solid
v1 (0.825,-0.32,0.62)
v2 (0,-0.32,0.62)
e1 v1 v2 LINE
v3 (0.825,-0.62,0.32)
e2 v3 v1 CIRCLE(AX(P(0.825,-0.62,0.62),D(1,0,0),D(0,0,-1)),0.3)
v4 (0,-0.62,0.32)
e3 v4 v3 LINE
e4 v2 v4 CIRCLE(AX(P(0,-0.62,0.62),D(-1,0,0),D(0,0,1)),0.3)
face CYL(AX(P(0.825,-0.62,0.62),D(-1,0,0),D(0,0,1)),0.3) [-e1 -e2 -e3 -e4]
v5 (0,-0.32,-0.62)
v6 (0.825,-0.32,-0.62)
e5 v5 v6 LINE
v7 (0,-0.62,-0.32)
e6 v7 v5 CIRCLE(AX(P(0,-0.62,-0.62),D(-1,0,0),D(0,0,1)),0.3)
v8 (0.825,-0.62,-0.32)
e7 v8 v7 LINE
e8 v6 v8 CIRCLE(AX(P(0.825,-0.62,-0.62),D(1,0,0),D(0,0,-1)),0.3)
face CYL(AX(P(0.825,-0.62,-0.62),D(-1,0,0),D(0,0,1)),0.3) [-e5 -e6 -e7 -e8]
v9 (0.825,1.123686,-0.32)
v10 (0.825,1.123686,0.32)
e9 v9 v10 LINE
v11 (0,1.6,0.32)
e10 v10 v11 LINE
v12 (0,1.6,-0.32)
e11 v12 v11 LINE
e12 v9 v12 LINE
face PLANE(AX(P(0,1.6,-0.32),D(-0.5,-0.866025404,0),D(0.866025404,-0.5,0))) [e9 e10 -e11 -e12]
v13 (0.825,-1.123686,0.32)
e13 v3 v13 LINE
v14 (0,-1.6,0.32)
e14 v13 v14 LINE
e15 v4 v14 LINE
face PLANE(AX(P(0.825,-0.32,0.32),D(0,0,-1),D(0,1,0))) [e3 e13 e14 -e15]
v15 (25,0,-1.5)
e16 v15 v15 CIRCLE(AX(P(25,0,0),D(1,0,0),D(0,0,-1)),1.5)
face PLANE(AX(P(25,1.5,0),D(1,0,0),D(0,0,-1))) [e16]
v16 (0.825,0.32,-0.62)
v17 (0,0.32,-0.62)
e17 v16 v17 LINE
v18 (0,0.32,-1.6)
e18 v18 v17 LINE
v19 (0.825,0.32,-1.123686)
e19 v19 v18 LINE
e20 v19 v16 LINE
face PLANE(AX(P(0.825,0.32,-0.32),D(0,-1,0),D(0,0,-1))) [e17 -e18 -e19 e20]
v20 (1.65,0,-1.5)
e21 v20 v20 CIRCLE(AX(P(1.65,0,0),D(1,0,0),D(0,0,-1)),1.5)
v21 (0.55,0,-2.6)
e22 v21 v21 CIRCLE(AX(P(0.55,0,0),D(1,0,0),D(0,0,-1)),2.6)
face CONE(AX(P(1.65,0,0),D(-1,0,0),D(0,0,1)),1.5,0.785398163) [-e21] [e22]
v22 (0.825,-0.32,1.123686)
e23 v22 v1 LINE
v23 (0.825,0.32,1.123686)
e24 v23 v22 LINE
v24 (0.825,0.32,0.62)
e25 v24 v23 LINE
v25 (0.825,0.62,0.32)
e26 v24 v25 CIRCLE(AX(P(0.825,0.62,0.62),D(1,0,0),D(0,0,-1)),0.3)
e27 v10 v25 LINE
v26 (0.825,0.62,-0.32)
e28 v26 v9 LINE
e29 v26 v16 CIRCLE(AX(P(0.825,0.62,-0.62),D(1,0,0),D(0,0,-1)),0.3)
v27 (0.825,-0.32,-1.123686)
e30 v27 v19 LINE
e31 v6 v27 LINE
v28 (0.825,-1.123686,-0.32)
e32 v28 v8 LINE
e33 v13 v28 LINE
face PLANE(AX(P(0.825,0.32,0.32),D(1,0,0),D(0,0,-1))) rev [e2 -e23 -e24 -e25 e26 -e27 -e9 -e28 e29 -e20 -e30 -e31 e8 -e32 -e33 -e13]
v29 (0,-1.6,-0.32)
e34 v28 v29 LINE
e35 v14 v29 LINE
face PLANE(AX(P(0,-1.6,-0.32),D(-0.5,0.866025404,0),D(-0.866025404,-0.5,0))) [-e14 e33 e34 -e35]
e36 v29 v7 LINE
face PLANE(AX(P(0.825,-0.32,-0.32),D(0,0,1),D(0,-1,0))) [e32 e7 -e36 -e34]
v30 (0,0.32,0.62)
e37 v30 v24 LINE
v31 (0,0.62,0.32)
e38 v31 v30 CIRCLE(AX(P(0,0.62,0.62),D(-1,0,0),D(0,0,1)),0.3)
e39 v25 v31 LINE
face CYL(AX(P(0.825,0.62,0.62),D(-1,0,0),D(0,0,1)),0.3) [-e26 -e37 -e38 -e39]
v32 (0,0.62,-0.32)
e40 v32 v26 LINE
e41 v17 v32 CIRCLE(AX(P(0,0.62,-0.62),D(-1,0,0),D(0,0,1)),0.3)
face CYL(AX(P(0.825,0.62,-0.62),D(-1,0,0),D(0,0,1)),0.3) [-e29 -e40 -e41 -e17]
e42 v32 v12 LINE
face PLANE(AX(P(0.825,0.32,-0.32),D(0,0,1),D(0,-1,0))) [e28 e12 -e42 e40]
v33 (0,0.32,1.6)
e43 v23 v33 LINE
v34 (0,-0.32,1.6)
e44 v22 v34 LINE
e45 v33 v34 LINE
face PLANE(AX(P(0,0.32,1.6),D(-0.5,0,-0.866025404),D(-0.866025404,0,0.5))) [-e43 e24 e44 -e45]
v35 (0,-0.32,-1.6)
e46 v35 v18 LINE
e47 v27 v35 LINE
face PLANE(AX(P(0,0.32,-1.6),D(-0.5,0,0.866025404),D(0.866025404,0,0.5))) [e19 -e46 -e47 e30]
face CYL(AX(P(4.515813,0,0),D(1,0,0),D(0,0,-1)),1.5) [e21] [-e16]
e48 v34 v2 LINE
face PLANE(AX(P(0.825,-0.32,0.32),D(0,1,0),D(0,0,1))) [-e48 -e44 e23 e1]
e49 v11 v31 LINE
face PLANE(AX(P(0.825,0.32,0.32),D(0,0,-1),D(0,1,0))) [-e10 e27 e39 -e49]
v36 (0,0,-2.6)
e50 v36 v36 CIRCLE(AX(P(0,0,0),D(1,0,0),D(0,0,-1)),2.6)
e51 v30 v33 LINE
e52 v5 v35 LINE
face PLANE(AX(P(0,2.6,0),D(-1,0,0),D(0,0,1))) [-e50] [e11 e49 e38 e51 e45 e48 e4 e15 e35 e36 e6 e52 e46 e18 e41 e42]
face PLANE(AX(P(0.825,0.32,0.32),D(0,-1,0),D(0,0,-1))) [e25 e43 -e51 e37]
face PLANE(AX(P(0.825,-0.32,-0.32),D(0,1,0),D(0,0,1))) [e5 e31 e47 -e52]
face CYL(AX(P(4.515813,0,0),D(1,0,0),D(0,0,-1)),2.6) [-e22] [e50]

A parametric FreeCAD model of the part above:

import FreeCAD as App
import Part
import Sketcher
Q = App.Units.Quantity


def edges_at(feature, points):
    """Names of the edges that pass closest to the given points."""
    edges = feature.Shape.Edges
    near = lambda p: min(range(len(edges)), key=lambda i: edges[i].distToShape(Part.Vertex(*p))[0])
    return sorted({f"Edge{near(p) + 1}" for p in points})


def faces_at(feature, points):
    """Names of the faces that lie closest to the given points."""
    faces = feature.Shape.Faces
    near = lambda p: min(range(len(faces)), key=lambda i: faces[i].distToShape(Part.Vertex(*p))[0])
    return sorted({f"Face{near(p) + 1}" for p in points})

doc = App.newDocument("Part")
body = doc.addObject("PartDesign::Body", "Body")

sketch1 = body.newObject("Sketcher::SketchObject", "Sketch")
sketch1.AttachmentSupport = (doc.getObject("XY_Plane"), [""])
sketch1.MapMode = "FlatFace"
sketch1.addGeometry([
    Part.LineSegment(App.Vector(25, 1.5, 0), App.Vector(1.6, 1.5, 0)),
    Part.LineSegment(App.Vector(1.6, 1.5, 0), App.Vector(0.6, 2.6, 0)),
    Part.LineSegment(App.Vector(0.6, 2.6, 0), App.Vector(0, 2.6, 0)),
    Part.LineSegment(App.Vector(0, 2.6, 0), App.Vector(0, 0, 0)),
    Part.LineSegment(App.Vector(0, 0, 0), App.Vector(25, 0, 0)),
    Part.LineSegment(App.Vector(25, 0, 0), App.Vector(25, 1.5, 0)),
], False)
sketch1.addConstraint([
    Sketcher.Constraint("Coincident", 0, 2, 1, 1),
    Sketcher.Constraint("Coincident", 1, 2, 2, 1),
    Sketcher.Constraint("Coincident", 2, 2, 3, 1),
    Sketcher.Constraint("Coincident", 3, 2, 4, 1),
    Sketcher.Constraint("Coincident", 4, 2, 5, 1),
    Sketcher.Constraint("Coincident", 5, 2, 0, 1),
    Sketcher.Constraint("Horizontal", 0),
    Sketcher.Constraint("Horizontal", 2),
    Sketcher.Constraint("Vertical", 3),
    Sketcher.Constraint("Horizontal", 4),
    Sketcher.Constraint("Vertical", 5),
    Sketcher.Constraint("Coincident", 3, 2, -1, 1),
    Sketcher.Constraint("DistanceX", 4, 1, 4, 2, 25.0),
    Sketcher.Constraint("Angle", 1, Q("135 deg")),
    Sketcher.Constraint("DistanceY", 3, 2, 3, 1, 2.6),
    Sketcher.Constraint("DistanceY", 5, 1, 5, 2, 1.5),
    Sketcher.Constraint("DistanceX", 0, 2, 0, 1, 23.35),
])
revolution = body.newObject("PartDesign::Revolution", "Revolution")
revolution.Profile = sketch1
revolution.ReferenceAxis = (sketch1, ["H_Axis"])
revolution.Angle = 360

sketch2 = body.newObject("Sketcher::SketchObject", "Sketch001")
sketch2.AttachmentSupport = (doc.getObject("YZ_Plane"), [""])
sketch2.MapMode = "FlatFace"
sketch2.addGeometry([
    Part.LineSegment(App.Vector(0.3, -0.3, 0), App.Vector(1.6, -0.3, 0)),
    Part.LineSegment(App.Vector(1.6, -0.3, 0), App.Vector(1.6, 0.3, 0)),
    Part.LineSegment(App.Vector(1.6, 0.3, 0), App.Vector(0.3, 0.3, 0)),
    Part.LineSegment(App.Vector(0.3, 0.3, 0), App.Vector(0.3, 1.6, 0)),
    Part.LineSegment(App.Vector(0.3, 1.6, 0), App.Vector(-0.3, 1.6, 0)),
    Part.LineSegment(App.Vector(-0.3, 1.6, 0), App.Vector(-0.3, 0.3, 0)),
    Part.LineSegment(App.Vector(-0.3, 0.3, 0), App.Vector(-1.6, 0.3, 0)),
    Part.LineSegment(App.Vector(-1.6, 0.3, 0), App.Vector(-1.6, -0.3, 0)),
    Part.LineSegment(App.Vector(-1.6, -0.3, 0), App.Vector(-0.3, -0.3, 0)),
    Part.LineSegment(App.Vector(-0.3, -0.3, 0), App.Vector(-0.3, -1.6, 0)),
    Part.LineSegment(App.Vector(-0.3, -1.6, 0), App.Vector(0.3, -1.6, 0)),
    Part.LineSegment(App.Vector(0.3, -1.6, 0), App.Vector(0.3, -0.3, 0)),
], False)
sketch2.addConstraint([
    Sketcher.Constraint("Coincident", 0, 2, 1, 1),
    Sketcher.Constraint("Coincident", 1, 2, 2, 1),
    Sketcher.Constraint("Coincident", 2, 2, 3, 1),
    Sketcher.Constraint("Coincident", 3, 2, 4, 1),
    Sketcher.Constraint("Coincident", 4, 2, 5, 1),
    Sketcher.Constraint("Coincident", 5, 2, 6, 1),
    Sketcher.Constraint("Coincident", 6, 2, 7, 1),
    Sketcher.Constraint("Coincident", 7, 2, 8, 1),
    Sketcher.Constraint("Coincident", 8, 2, 9, 1),
    Sketcher.Constraint("Coincident", 9, 2, 10, 1),
    Sketcher.Constraint("Coincident", 10, 2, 11, 1),
    Sketcher.Constraint("Coincident", 11, 2, 0, 1),
    Sketcher.Constraint("Horizontal", 0),
    Sketcher.Constraint("Vertical", 1),
    Sketcher.Constraint("Horizontal", 2),
    Sketcher.Constraint("Vertical", 3),
    Sketcher.Constraint("Horizontal", 4),
    Sketcher.Constraint("Vertical", 5),
    Sketcher.Constraint("Horizontal", 6),
    Sketcher.Constraint("Vertical", 7),
    Sketcher.Constraint("Horizontal", 8),
    Sketcher.Constraint("Vertical", 9),
    Sketcher.Constraint("Horizontal", 10),
    Sketcher.Constraint("Vertical", 11),
    Sketcher.Constraint("Symmetric", 0, 2, 6, 2, -1, 1),
    Sketcher.Constraint("Symmetric", 2, 2, 8, 2, -1, 1),
    Sketcher.Constraint("Symmetric", 4, 2, 10, 2, -1, 1),
    Sketcher.Constraint("Symmetric", 2, 2, 5, 2, -2),
    Sketcher.Constraint("Equal", 10, 1),
    Sketcher.Constraint("Equal", 8, 3),
    Sketcher.Constraint("DistanceX", 0, 1, 0, 2, 1.28),
    Sketcher.Constraint("DistanceX", 4, 2, 4, 1, 0.64),
])
pocket1 = body.newObject("PartDesign::Pocket", "Pocket")
pocket1.Profile = sketch2
pocket1.Length = 0.825
pocket1.Reversed = True
doc.recompute()

draft = body.newObject("PartDesign::Draft", "Draft")
draft.Base = (pocket1, faces_at(pocket1, [
    (0.412, -1.6, 0),
    (0.412, 0, 1.6),
    (0.412, 0, -1.6),
    (0.412, 1.6, 0),
]))
draft.NeutralPlane = (doc.getObject("YZ_Plane"), [""])
draft.Angle = 30
draft.Reversed = True
doc.recompute()

fillet = body.newObject("PartDesign::Fillet", "Fillet")
fillet.Base = (draft, edges_at(draft, [
    (0.412, 0.32, 0.32),
    (0.412, -0.32, 0.32),
    (0.412, -0.32, -0.32),
    (0.412, 0.32, -0.32),
]))
fillet.Radius = 0.3

sketch3 = body.newObject("Sketcher::SketchObject", "Sketch002")
sketch3.AttachmentSupport = (doc.getObject("XY_Plane"), [""])
sketch3.MapMode = "FlatFace"
sketch3.addGeometry([
    Part.LineSegment(App.Vector(1.6, 1.5, 0), App.Vector(1.6, 0, 0)),
    Part.LineSegment(App.Vector(1.6, 0, 0), App.Vector(2.1, 0, 0)),
    Part.LineSegment(App.Vector(2.1, 0, 0), App.Vector(2.1, 1.5, 0)),
    Part.LineSegment(App.Vector(2.1, 1.5, 0), App.Vector(1.6, 1.5, 0)),
], False)
sketch3.addConstraint([
    Sketcher.Constraint("Coincident", 0, 2, 1, 1),
    Sketcher.Constraint("Coincident", 1, 2, 2, 1),
    Sketcher.Constraint("Coincident", 2, 2, 3, 1),
    Sketcher.Constraint("Coincident", 3, 2, 0, 1),
    Sketcher.Constraint("Vertical", 0),
    Sketcher.Constraint("Horizontal", 1),
    Sketcher.Constraint("Vertical", 2),
    Sketcher.Constraint("Horizontal", 3),
    Sketcher.Constraint("PointOnObject", 0, 2, -1),
    Sketcher.Constraint("DistanceX", 1, 1, 1, 2, 0.5),
    Sketcher.Constraint("DistanceY", 0, 2, 0, 1, 1.5),
    Sketcher.Constraint("DistanceX", -1, 1, 0, 2, 1.65),
])
revolution2 = body.newObject("PartDesign::Revolution", "Revolution001")
revolution2.Profile = sketch3
revolution2.ReferenceAxis = (sketch3, ["H_Axis"])
revolution2.Angle = 360

doc.recompute()
